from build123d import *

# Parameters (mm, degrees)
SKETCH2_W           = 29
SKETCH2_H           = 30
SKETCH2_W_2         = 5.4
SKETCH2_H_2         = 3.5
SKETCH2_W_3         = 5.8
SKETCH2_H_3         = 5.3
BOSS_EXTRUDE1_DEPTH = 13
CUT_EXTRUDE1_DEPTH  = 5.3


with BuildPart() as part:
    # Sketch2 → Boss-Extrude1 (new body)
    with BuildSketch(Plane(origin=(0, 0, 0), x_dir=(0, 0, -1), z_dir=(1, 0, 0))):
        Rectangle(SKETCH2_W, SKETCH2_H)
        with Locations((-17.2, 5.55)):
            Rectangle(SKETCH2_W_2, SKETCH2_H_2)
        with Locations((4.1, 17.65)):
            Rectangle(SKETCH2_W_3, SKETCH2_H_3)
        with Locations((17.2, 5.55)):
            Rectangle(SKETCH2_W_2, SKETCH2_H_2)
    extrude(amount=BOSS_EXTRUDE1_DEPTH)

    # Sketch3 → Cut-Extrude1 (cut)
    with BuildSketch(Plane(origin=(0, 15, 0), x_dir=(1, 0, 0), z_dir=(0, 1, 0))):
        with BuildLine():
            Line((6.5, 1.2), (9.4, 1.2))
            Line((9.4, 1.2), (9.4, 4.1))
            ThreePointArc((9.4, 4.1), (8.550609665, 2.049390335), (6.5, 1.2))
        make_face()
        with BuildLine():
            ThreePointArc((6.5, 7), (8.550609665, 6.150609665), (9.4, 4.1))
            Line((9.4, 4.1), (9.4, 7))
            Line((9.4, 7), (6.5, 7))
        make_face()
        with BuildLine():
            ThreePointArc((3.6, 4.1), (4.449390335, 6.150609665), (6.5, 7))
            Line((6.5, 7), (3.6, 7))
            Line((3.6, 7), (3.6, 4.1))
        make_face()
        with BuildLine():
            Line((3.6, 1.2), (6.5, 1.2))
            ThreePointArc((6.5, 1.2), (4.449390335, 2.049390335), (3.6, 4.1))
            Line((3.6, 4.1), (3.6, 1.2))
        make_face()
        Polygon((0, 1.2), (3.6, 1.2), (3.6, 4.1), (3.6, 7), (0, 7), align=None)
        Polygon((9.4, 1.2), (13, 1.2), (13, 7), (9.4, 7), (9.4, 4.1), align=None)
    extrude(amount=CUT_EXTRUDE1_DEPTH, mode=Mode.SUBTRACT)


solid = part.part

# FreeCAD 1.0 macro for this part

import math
import FreeCAD as App
import Part
import Sketcher
from FreeCAD import Vector


def add_polygon(sketch, points):
    """Adds a closed chain of lines whose ends are joined by coincident constraints."""
    first, n = sketch.GeometryCount, len(points)
    for a, b in zip(points, points[1:] + points[:1]):
        sketch.addGeometry(Part.LineSegment(App.Vector(*a, 0), App.Vector(*b, 0)), False)
    for i in range(n):
        sketch.addConstraint(Sketcher.Constraint("Coincident", first + i, 2, first + (i + 1) % n, 1))

doc = App.newDocument("Part")
body = doc.addObject("PartDesign::Body", "Body")

# Sketch on YZ plane
sketch1 = body.newObject("Sketcher::SketchObject", "Sketch")
sketch1.AttachmentSupport = (doc.getObject("YZ_Plane"), [""])
sketch1.MapMode = "FlatFace"
add_polygon(sketch1, [(3.8, 14.5), (-15, 14.5), (-15, -14.5), (3.8, -14.5), (3.8, -19.9), (7.3, -19.9), (7.3, -14.5), (15, -14.5), (15, -7), (20.3, -7), (20.3, -1.2), (15, -1.2), (15, 14.5), (7.3, 14.5), (7.3, 19.9), (3.8, 19.9)])  # lines 0-15
sketch1.addConstraint(Sketcher.Constraint("Horizontal", 0))
sketch1.addConstraint(Sketcher.Constraint("Vertical", 1))
sketch1.addConstraint(Sketcher.Constraint("Horizontal", 2))
sketch1.addConstraint(Sketcher.Constraint("Vertical", 3))
sketch1.addConstraint(Sketcher.Constraint("Horizontal", 4))
sketch1.addConstraint(Sketcher.Constraint("Vertical", 5))
sketch1.addConstraint(Sketcher.Constraint("Horizontal", 6))
sketch1.addConstraint(Sketcher.Constraint("Vertical", 7))
sketch1.addConstraint(Sketcher.Constraint("Horizontal", 8))
sketch1.addConstraint(Sketcher.Constraint("Vertical", 9))
sketch1.addConstraint(Sketcher.Constraint("Horizontal", 10))
sketch1.addConstraint(Sketcher.Constraint("Vertical", 11))
sketch1.addConstraint(Sketcher.Constraint("Horizontal", 12))
sketch1.addConstraint(Sketcher.Constraint("Vertical", 13))
sketch1.addConstraint(Sketcher.Constraint("Horizontal", 14))
sketch1.addConstraint(Sketcher.Constraint("Vertical", 15))
sketch1.addConstraint(Sketcher.Constraint("Symmetric", 0, 2, 6, 2, -1, 1))
sketch1.addConstraint(Sketcher.Constraint("Symmetric", 1, 2, 11, 2, -1, 1))
sketch1.addConstraint(Sketcher.Constraint("Symmetric", 5, 2, 12, 2, -1))
sketch1.addConstraint(Sketcher.Constraint("Symmetric", 3, 2, 14, 2, -1))
sketch1.addConstraint(Sketcher.Constraint("DistanceY", 1, 2, 1, 1, 29.0))
sketch1.addConstraint(Sketcher.Constraint("DistanceX", 0, 2, 0, 1, 18.8))
sketch1.addConstraint(Sketcher.Constraint("DistanceX", 4, 1, 4, 2, 3.5))
sketch1.addConstraint(Sketcher.Constraint("DistanceX", 6, 1, 6, 2, 7.7))
sketch1.addConstraint(Sketcher.Constraint("DistanceX", 8, 1, 8, 2, 5.3))
sketch1.addConstraint(Sketcher.Constraint("DistanceY", 3, 2, 3, 1, 5.4))
sketch1.addConstraint(Sketcher.Constraint("DistanceY", 7, 1, 7, 2, 7.5))
sketch1.addConstraint(Sketcher.Constraint("DistanceY", 9, 1, 9, 2, 5.8))
pad1 = body.newObject("PartDesign::Pad", "Pad")
pad1.Profile = sketch1
pad1.Length = 13

# Sketch on XZ plane
sketch2 = body.newObject("Sketcher::SketchObject", "Sketch001")
sketch2.AttachmentSupport = (doc.getObject("XZ_Plane"), [""])
sketch2.MapMode = "FlatFace"
sketch2.AttachmentOffset = App.Placement(Vector(0, 0, -15), App.Rotation())
sketch2.addGeometry(Part.LineSegment(Vector(6.5, -1.2, 0), Vector(13, -1.2, 0)), False)
sketch2.addGeometry(Part.LineSegment(Vector(13, -1.2, 0), Vector(13, -7, 0)), False)
sketch2.addGeometry(Part.LineSegment(Vector(13, -7, 0), Vector(6.5, -7, 0)), False)
sketch2.addGeometry(Part.ArcOfCircle(Part.Circle(Vector(6.5, -4.1, 0), Vector(0, 0, 1), 2.9), math.radians(-90), math.radians(0)), False)
sketch2.addGeometry(Part.ArcOfCircle(Part.Circle(Vector(6.5, -4.1, 0), Vector(0, 0, 1), 2.9), math.radians(0), math.radians(90)), False)
sketch2.addGeometry(Part.ArcOfCircle(Part.Circle(Vector(6.5, -4.1, 0), Vector(0, 0, 1), 2.9), math.radians(-180), math.radians(-90)), False)
sketch2.addGeometry(Part.LineSegment(Vector(6.5, -7, 0), Vector(0, -7, 0)), False)
sketch2.addGeometry(Part.LineSegment(Vector(0, -7, 0), Vector(0, -1.2, 0)), False)
sketch2.addGeometry(Part.LineSegment(Vector(0, -1.2, 0), Vector(6.5, -1.2, 0)), False)
sketch2.addGeometry(Part.ArcOfCircle(Part.Circle(Vector(6.5, -4.1, 0), Vector(0, 0, 1), 2.9), math.radians(90), math.radians(180)), False)
sketch2.addConstraint(Sketcher.Constraint("Coincident", 0, 2, 1, 1))
sketch2.addConstraint(Sketcher.Constraint("Coincident", 1, 2, 2, 1))
sketch2.addConstraint(Sketcher.Constraint("Tangent", 2, 2, 3, 1))
sketch2.addConstraint(Sketcher.Constraint("Tangent", 3, 2, 4, 1))
sketch2.addConstraint(Sketcher.Constraint("Tangent", 4, 2, 0, 1))
sketch2.addConstraint(Sketcher.Constraint("Tangent", 5, 2, 6, 1))
sketch2.addConstraint(Sketcher.Constraint("Coincident", 6, 2, 7, 1))
sketch2.addConstraint(Sketcher.Constraint("Coincident", 7, 2, 8, 1))
sketch2.addConstraint(Sketcher.Constraint("Tangent", 8, 2, 9, 1))
sketch2.addConstraint(Sketcher.Constraint("Tangent", 9, 2, 5, 1))
sketch2.addConstraint(Sketcher.Constraint("Horizontal", 0))
sketch2.addConstraint(Sketcher.Constraint("Vertical", 1))
sketch2.addConstraint(Sketcher.Constraint("Horizontal", 2))
sketch2.addConstraint(Sketcher.Constraint("Horizontal", 6))
sketch2.addConstraint(Sketcher.Constraint("Vertical", 7))
sketch2.addConstraint(Sketcher.Constraint("Horizontal", 8))
sketch2.addConstraint(Sketcher.Constraint("Coincident", 5, 3, 3, 3))
sketch2.addConstraint(Sketcher.Constraint("Coincident", 8, 2, 4, 2))
sketch2.addConstraint(Sketcher.Constraint("Equal", 3, 4))
sketch2.addConstraint(Sketcher.Constraint("PointOnObject", 6, 2, -2))
sketch2.addConstraint(Sketcher.Constraint("Horizontal", 9, 3, 3, 2))
sketch2.addConstraint(Sketcher.Constraint("Horizontal", 3, 2, 9, 2))
sketch2.addConstraint(Sketcher.Constraint("Equal", 2, 6))
sketch2.addConstraint(Sketcher.Constraint("Radius", 3, 2.9))
sketch2.addConstraint(Sketcher.Constraint("DistanceX", 0, 1, 0, 2, 6.5))
sketch2.addConstraint(Sketcher.Constraint("DistanceY", 1, 2, -1, 1, 7.0))
pocket1 = body.newObject("PartDesign::Pocket", "Pocket")
pocket1.Profile = sketch2
pocket1.Length = 5.3

doc.recompute()
